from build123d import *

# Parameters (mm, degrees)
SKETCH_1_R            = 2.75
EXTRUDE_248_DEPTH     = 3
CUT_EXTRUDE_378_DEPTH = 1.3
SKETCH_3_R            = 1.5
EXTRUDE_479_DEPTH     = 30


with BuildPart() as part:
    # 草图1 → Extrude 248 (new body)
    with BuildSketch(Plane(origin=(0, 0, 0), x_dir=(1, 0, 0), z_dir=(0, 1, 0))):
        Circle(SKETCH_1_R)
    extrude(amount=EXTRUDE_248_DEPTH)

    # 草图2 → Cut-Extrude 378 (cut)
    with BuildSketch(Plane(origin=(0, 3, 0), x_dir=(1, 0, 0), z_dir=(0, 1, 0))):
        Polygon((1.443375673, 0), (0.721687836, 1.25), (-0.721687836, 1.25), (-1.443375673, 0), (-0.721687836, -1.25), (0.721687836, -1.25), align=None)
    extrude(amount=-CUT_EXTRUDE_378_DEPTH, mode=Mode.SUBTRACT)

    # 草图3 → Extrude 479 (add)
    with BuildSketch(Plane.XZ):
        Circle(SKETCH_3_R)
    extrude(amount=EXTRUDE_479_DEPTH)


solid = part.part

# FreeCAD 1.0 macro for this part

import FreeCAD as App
import Part
import Sketcher
from FreeCAD import Vector
Q = App.Units.Quantity


def add_polygon(sketch, points):
    """Adds a closed chain of lines whose ends are joined by coincident constraints."""
    first, n = sketch.GeometryCount, len(points)
    for a, b in zip(points, points[1:] + points[:1]):
        sketch.addGeometry(Part.LineSegment(App.Vector(*a, 0), App.Vector(*b, 0)), False)
    for i in range(n):
        sketch.addConstraint(Sketcher.Constraint("Coincident", first + i, 2, first + (i + 1) % n, 1))

doc = App.newDocument("Part")
body = doc.addObject("PartDesign::Body", "Body")

sketch1 = doc.addObject("Sketcher::SketchObject", "Sketch")
body.addObject(sketch1)
sketch1.AttachmentSupport = (doc.XZ_Plane, [""])
sketch1.MapMode = "FlatFace"
sketch1.addGeometry(Part.Circle(Vector(0, 0, 0), Vector(0, 0, 1), 2.8), False)
sketch1.addConstraint(Sketcher.Constraint("Coincident", 0, 3, -1, 1))
sketch1.addConstraint(Sketcher.Constraint("Diameter", 0, Q("5.5 mm")))
pad1 = doc.addObject("PartDesign::Pad", "Pad")
body.addObject(pad1)
pad1.Profile = sketch1
pad1.Length = 3
pad1.Reversed = True

sketch2 = doc.addObject("Sketcher::SketchObject", "Sketch001")
body.addObject(sketch2)
sketch2.AttachmentSupport = (doc.XZ_Plane, [""])
sketch2.MapMode = "FlatFace"
sketch2.AttachmentOffset = App.Placement(Vector(0, 0, -3), App.Rotation())
add_polygon(sketch2, [(1.4, 0), (0.7, -1.2), (-0.7, -1.2), (-1.4, 0), (-0.7, 1.2), (0.7, 1.2)])
sketch2.addConstraint(Sketcher.Constraint("Horizontal", 1))
sketch2.addConstraint(Sketcher.Constraint("Horizontal", 4))
sketch2.addConstraint(Sketcher.Constraint("Symmetric", 0, 2, 3, 2, -1, 1))
sketch2.addConstraint(Sketcher.Constraint("Symmetric", 2, 2, 5, 2, -1, 1))
sketch2.addConstraint(Sketcher.Constraint("PointOnObject", 2, 2, -1))
sketch2.addConstraint(Sketcher.Constraint("Parallel", 2, 5))
sketch2.addConstraint(Sketcher.Constraint("Vertical", 1, 2, 3, 2))
sketch2.addConstraint(Sketcher.Constraint("Angle", 0, Q("-120 deg")))
sketch2.addConstraint(Sketcher.Constraint("DistanceY", 1, 2, 3, 2, Q("2.5 mm")))
sketch2.addConstraint(Sketcher.Constraint("DistanceX", 1, 2, 1, 1, Q("1.443376 mm")))
pocket1 = doc.addObject("PartDesign::Pocket", "Pocket")
body.addObject(pocket1)
pocket1.Profile = sketch2
pocket1.Length = 1.3
pocket1.Reversed = True

sketch3 = doc.addObject("Sketcher::SketchObject", "Sketch002")
body.addObject(sketch3)
sketch3.AttachmentSupport = (doc.XZ_Plane, [""])
sketch3.MapMode = "FlatFace"
sketch3.addGeometry(Part.Circle(Vector(0, 0, 0), Vector(0, 0, 1), 1.5), False)
sketch3.addConstraint(Sketcher.Constraint("Coincident", 0, 3, -1, 1))
sketch3.addConstraint(Sketcher.Constraint("Diameter", 0, Q("3 mm")))
pad2 = doc.addObject("PartDesign::Pad", "Pad001")
body.addObject(pad2)
pad2.Profile = sketch3
pad2.Length = 30

doc.recompute()
